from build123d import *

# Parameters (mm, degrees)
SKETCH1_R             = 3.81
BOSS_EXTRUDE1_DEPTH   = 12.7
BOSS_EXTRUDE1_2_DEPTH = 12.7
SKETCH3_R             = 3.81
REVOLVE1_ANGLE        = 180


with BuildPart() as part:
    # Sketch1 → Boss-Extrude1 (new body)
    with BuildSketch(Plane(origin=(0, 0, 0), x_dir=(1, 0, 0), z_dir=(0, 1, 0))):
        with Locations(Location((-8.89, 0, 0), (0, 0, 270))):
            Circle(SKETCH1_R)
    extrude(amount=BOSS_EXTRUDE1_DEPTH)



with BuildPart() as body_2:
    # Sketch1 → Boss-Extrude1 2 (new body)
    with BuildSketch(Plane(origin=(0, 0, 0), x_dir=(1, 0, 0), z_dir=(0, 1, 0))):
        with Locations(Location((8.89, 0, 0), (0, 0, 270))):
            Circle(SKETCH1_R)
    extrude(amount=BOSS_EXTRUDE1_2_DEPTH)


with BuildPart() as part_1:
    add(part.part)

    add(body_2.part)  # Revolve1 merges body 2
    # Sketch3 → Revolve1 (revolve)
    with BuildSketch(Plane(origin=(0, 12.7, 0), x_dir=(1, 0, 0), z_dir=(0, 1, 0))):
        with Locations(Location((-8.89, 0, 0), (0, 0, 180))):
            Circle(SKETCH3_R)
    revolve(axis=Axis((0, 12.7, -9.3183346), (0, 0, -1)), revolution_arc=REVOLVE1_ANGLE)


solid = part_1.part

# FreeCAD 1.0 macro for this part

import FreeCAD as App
import Part
import Sketcher
Q = App.Units.Quantity

doc = App.newDocument("Part")
body = doc.addObject("PartDesign::Body", "Body")

# Sketch on XZ plane
sketch1 = body.newObject("Sketcher::SketchObject", "Sketch")
sketch1.AttachmentSupport = (doc.getObject("XZ_Plane"), [""])
sketch1.MapMode = "FlatFace"
sketch1.addGeometry(Part.Circle(App.Vector(-8.89, 0, 0), App.Vector(0, 0, 1), 3.81), False)
sketch1.addConstraint(Sketcher.Constraint("PointOnObject", 0, 3, -1))
sketch1.addConstraint(Sketcher.Constraint("Diameter", 0, Q("0.3 in")))
sketch1.addConstraint(Sketcher.Constraint("DistanceX", 0, 3, -1, 1, Q("0.35 in")))
pad1 = body.newObject("PartDesign::Pad", "Pad")
pad1.Profile = sketch1
pad1.Length = Q("0.5 in")
pad1.Reversed = True
body2 = doc.addObject("PartDesign::Body", "Body001")

# Sketch on XZ plane
sketch2 = body2.newObject("Sketcher::SketchObject", "Sketch001")
sketch2.AttachmentSupport = (doc.getObject("XZ_Plane001"), [""])
sketch2.MapMode = "FlatFace"
sketch2.addGeometry(Part.Circle(App.Vector(8.89, 0, 0), App.Vector(0, 0, 1), 3.81), False)
sketch2.addConstraint(Sketcher.Constraint("PointOnObject", 0, 3, -1))
sketch2.addConstraint(Sketcher.Constraint("Diameter", 0, Q("0.3 in")))
sketch2.addConstraint(Sketcher.Constraint("DistanceX", -1, 1, 0, 3, Q("0.35 in")))
pad2 = body2.newObject("PartDesign::Pad", "Pad001")
pad2.Profile = sketch2
pad2.Length = Q("0.5 in")
pad2.Reversed = True
body.AllowCompound = True
doc.recompute()

boolean = body.newObject("PartDesign::Boolean", "Boolean")
boolean.Type = "Fuse"
boolean.addObjects([body2])

# Sketch on XZ plane
sketch3 = body.newObject("Sketcher::SketchObject", "Sketch002")
sketch3.AttachmentSupport = (doc.getObject("XZ_Plane"), [""])
sketch3.MapMode = "FlatFace"
sketch3.AttachmentOffset = App.Placement(App.Vector(0, 0, -0.5 * 25.4), App.Rotation())
sketch3.addGeometry(Part.Circle(App.Vector(-8.89, 0, 0), App.Vector(0, 0, 1), 3.81), False)
sketch3.addConstraint(Sketcher.Constraint("PointOnObject", 0, 3, -1))
sketch3.addConstraint(Sketcher.Constraint("Diameter", 0, Q("0.3 in")))
sketch3.addConstraint(Sketcher.Constraint("DistanceX", 0, 3, -1, 1, Q("0.35 in")))
revolution = body.newObject("PartDesign::Revolution", "Revolution")
revolution.Profile = sketch3
revolution.ReferenceAxis = (sketch3, ["V_Axis"])
revolution.Angle = 180
revolution.Reversed = True

doc.recompute()
